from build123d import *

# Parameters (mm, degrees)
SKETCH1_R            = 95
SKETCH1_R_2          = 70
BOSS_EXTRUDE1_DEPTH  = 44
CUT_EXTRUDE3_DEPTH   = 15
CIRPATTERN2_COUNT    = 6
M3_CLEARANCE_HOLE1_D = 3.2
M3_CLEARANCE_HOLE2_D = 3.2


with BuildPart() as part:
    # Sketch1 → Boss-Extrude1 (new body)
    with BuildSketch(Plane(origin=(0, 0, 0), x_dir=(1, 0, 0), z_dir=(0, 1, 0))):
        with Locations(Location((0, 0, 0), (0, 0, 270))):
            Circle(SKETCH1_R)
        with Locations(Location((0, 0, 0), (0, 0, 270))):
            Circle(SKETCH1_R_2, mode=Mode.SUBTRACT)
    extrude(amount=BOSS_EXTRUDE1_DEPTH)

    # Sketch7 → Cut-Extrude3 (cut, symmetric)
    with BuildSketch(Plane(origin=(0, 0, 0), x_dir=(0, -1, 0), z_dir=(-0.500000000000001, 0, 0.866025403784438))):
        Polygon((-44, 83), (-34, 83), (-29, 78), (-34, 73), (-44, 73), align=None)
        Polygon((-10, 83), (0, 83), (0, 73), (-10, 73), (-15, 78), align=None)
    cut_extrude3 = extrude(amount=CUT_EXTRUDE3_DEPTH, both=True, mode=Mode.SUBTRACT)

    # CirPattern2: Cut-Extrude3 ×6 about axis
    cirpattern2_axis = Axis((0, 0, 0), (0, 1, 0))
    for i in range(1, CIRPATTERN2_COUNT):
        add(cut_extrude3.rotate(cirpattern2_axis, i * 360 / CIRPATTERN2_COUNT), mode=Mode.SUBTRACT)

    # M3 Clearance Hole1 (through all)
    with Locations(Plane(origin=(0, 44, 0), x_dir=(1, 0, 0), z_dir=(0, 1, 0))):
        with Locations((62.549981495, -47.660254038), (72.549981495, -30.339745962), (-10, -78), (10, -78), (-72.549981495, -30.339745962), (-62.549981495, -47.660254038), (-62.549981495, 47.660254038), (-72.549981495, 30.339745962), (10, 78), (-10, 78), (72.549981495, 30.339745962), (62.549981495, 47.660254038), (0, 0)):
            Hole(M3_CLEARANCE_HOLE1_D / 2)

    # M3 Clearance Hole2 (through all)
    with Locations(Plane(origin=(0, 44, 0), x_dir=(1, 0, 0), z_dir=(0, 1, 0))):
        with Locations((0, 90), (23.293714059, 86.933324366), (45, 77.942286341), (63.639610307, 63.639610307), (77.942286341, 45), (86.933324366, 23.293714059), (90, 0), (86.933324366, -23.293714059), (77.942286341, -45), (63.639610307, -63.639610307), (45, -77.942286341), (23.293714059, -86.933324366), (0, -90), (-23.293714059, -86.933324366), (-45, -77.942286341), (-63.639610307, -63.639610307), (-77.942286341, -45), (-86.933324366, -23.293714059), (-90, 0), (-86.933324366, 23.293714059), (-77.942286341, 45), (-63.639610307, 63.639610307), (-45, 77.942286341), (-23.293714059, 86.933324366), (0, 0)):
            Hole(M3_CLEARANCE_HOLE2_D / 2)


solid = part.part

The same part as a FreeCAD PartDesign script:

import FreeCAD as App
import Part
import Sketcher
Q = App.Units.Quantity


def add_polygon(sketch, points):
    """Adds a closed chain of lines whose ends are joined by coincident constraints."""
    first, n = sketch.GeometryCount, len(points)
    for a, b in zip(points, points[1:] + points[:1]):
        sketch.addGeometry(Part.LineSegment(App.Vector(*a, 0), App.Vector(*b, 0)), False)
    for i in range(n):
        sketch.addConstraint(Sketcher.Constraint("Coincident", first + i, 2, first + (i + 1) % n, 1))

doc = App.newDocument("Part")
params = doc.addObject("Spreadsheet::Sheet", "Params")
for row, (alias, value) in enumerate([
    ("sketch1_diameter", "190 mm"),
    ("sketch1_diameter2", "140 mm"),
    ("pad1_length", "44 mm"),
    ("sketch2_width", "10 mm"),
    ("pocket1_length", "30 mm"),
    ("sketch3_diameter", "3.2 mm"),
    ("hole_diameter", "3.2 mm"),
    ("sketch4_diameter", "3.2 mm"),
    ("hole2_diameter", "3.2 mm"),
], start=1):
    params.set(f"A{row}", alias)
    params.set(f"B{row}", "=" + value)
    params.setAlias(f"B{row}", alias)

body = doc.addObject("PartDesign::Body", "Body")

# Sketch on XZ plane
sketch1 = body.newObject("Sketcher::SketchObject", "Sketch")
sketch1.AttachmentSupport = (doc.getObject("XZ_Plane"), [""])
sketch1.MapMode = "FlatFace"
sketch1.addGeometry([
    Part.Circle(App.Vector(0, 0, 0), App.Vector(0, 0, 1), 95),
    Part.Circle(App.Vector(0, 0, 0), App.Vector(0, 0, 1), 70),
], False)
sketch1.addConstraint([
    Sketcher.Constraint("Coincident", 0, 3, -1, 1),
    Sketcher.Constraint("Coincident", 1, 3, -1, 1),
    Sketcher.Constraint("Diameter", 0, Q("190 mm")),
    Sketcher.Constraint("Diameter", 1, Q("140 mm")),
])
sketch1.setExpression("Constraints[2]", "Params.sketch1_diameter")
sketch1.setExpression("Constraints[3]", "Params.sketch1_diameter2")
pad1 = body.newObject("PartDesign::Pad", "Pad")
pad1.Profile = sketch1
pad1.setExpression("Length", "Params.pad1_length")
pad1.Reversed = True

# Sketch on an angled plane
sketch2 = body.newObject("Sketcher::SketchObject", "Sketch001")
sketch2.Placement = App.Placement(App.Vector(0, 0, 0), App.Rotation(App.Vector(0, -1, 0), App.Vector(0.866025404, 0, 0.5), App.Vector(-0.5, 0, 0.866025404), "ZXY"))
add_polygon(sketch2, [(-34, 83), (-44, 83), (-44, 73), (-34, 73), (-29, 78)])  # lines 0-4
add_polygon(sketch2, [(0, 83), (-10, 83), (-15, 78), (-10, 73), (0, 73)])  # lines 5-9
sketch2.addConstraint([
    Sketcher.Constraint("Horizontal", 0),
    Sketcher.Constraint("Vertical", 1),
    Sketcher.Constraint("Horizontal", 2),
    Sketcher.Constraint("Horizontal", 5),
    Sketcher.Constraint("Horizontal", 8),
    Sketcher.Constraint("Vertical", 9),
    Sketcher.Constraint("PointOnObject", 8, 2, -2),
    Sketcher.Constraint("Perpendicular", 3, 4),
    Sketcher.Constraint("Perpendicular", 4, 6),
    Sketcher.Constraint("Perpendicular", 6, 7),
    Sketcher.Constraint("Horizontal", 4, 2, 5, 2),
    Sketcher.Constraint("Horizontal", 3, 2, 6, 2),
    Sketcher.Constraint("Horizontal", 2, 2, 7, 2),
    Sketcher.Constraint("Vertical", 2, 2, 4, 2),
    Sketcher.Constraint("Vertical", 5, 2, 7, 2),
    Sketcher.Constraint("Equal", 2, 5),
    Sketcher.Constraint("Equal", 8, 1),
    Sketcher.Constraint("DistanceX", 0, 2, 0, 1, Q("10 mm")),
    Sketcher.Constraint("DistanceX", 0, 2, -1, 1, Q("44 mm")),
    Sketcher.Constraint("DistanceY", -1, 1, 0, 2, Q("83 mm")),
])
sketch2.setExpression("Constraints[27]", "Params.sketch2_width")
pocket1 = body.newObject("PartDesign::Pocket", "Pocket")
pocket1.Profile = sketch2
pocket1.setExpression("Length", "Params.pocket1_length")
pocket1.Midplane = True
doc.recompute()

polarpattern = body.newObject("PartDesign::PolarPattern", "PolarPattern")
polarpattern.Originals = [pocket1]
polarpattern.Axis = (doc.getObject("Y_Axis"), [""])
polarpattern.Angle = 360
polarpattern.Occurrences = 6
body.Tip = polarpattern

# Sketch on XZ plane
sketch3 = body.newObject("Sketcher::SketchObject", "Sketch002")
sketch3.AttachmentSupport = (doc.getObject("XZ_Plane"), [""])
sketch3.MapMode = "FlatFace"
sketch3.AttachmentOffset = App.Placement(App.Vector(0, 0, -44), App.Rotation())
sketch3.addGeometry([
    Part.Circle(App.Vector(62.5, 47.7, 0), App.Vector(0, 0, 1), 1.6),  # 0
    Part.Circle(App.Vector(72.5, 30.3, 0), App.Vector(0, 0, 1), 1.6),  # 1
    Part.Circle(App.Vector(-10, 78, 0), App.Vector(0, 0, 1), 1.6),  # 2
    Part.Circle(App.Vector(10, 78, 0), App.Vector(0, 0, 1), 1.6),  # 3
    Part.Circle(App.Vector(-72.5, 30.3, 0), App.Vector(0, 0, 1), 1.6),  # 4
    Part.Circle(App.Vector(-62.5, 47.7, 0), App.Vector(0, 0, 1), 1.6),  # 5
    Part.Circle(App.Vector(-62.5, -47.7, 0), App.Vector(0, 0, 1), 1.6),  # 6
    Part.Circle(App.Vector(-72.5, -30.3, 0), App.Vector(0, 0, 1), 1.6),  # 7
    Part.Circle(App.Vector(10, -78, 0), App.Vector(0, 0, 1), 1.6),  # 8
    Part.Circle(App.Vector(-10, -78, 0), App.Vector(0, 0, 1), 1.6),  # 9
    Part.Circle(App.Vector(72.5, -30.3, 0), App.Vector(0, 0, 1), 1.6),  # 10
    Part.Circle(App.Vector(62.5, -47.7, 0), App.Vector(0, 0, 1), 1.6),  # 11
    Part.Circle(App.Vector(0, 0, 0), App.Vector(0, 0, 1), 1.6),  # 12
], False)
sketch3.addConstraint([
    Sketcher.Constraint("Coincident", 12, 3, -1, 1),
    Sketcher.Constraint("Equal", 0, 1),
    Sketcher.Constraint("Equal", 1, 2),
    Sketcher.Constraint("Equal", 2, 3),
    Sketcher.Constraint("Equal", 3, 4),
    Sketcher.Constraint("Equal", 4, 5),
    Sketcher.Constraint("Equal", 5, 6),
    Sketcher.Constraint("Equal", 6, 7),
    Sketcher.Constraint("Equal", 7, 8),
    Sketcher.Constraint("Equal", 8, 9),
    Sketcher.Constraint("Equal", 9, 10),
    Sketcher.Constraint("Equal", 10, 11),
    Sketcher.Constraint("Equal", 11, 12),
    Sketcher.Constraint("Symmetric", 0, 3, 6, 3, -1, 1),
    Sketcher.Constraint("Symmetric", 1, 3, 7, 3, -1, 1),
    Sketcher.Constraint("Symmetric", 2, 3, 8, 3, -1, 1),
    Sketcher.Constraint("Symmetric", 3, 3, 9, 3, -1, 1),
    Sketcher.Constraint("Symmetric", 4, 3, 10, 3, -1, 1),
    Sketcher.Constraint("Symmetric", 5, 3, 11, 3, -1, 1),
    Sketcher.Constraint("Symmetric", 2, 3, 3, 3, -2),
    Sketcher.Constraint("Symmetric", 1, 3, 4, 3, -2),
    Sketcher.Constraint("Symmetric", 0, 3, 5, 3, -2),
    Sketcher.Constraint("Diameter", 0, Q("3.2 mm")),
    Sketcher.Constraint("DistanceX", 2, 3, -1, 1, Q("10 mm")),
    Sketcher.Constraint("DistanceY", -1, 1, 2, 3, Q("78 mm")),
    Sketcher.Constraint("DistanceX", 0, 3, 1, 3, Q("10 mm")),
    Sketcher.Constraint("DistanceY", 6, 3, 4, 3, Q("78 mm")),
    Sketcher.Constraint("DistanceX", -1, 1, 0, 3, Q("62.549981 mm")),
    Sketcher.Constraint("DistanceY", 1, 3, 0, 3, Q("17.320508 mm")),
])
sketch3.setExpression("Constraints[22]", "Params.sketch3_diameter")
doc.recompute()
hole = body.newObject("PartDesign::Hole", "Hole")
hole.Profile = sketch3
hole.ThreadType = "None"
hole.setExpression("Diameter", "Params.hole_diameter")
hole.DepthType = "ThroughAll"
hole.Reversed = True

# Sketch on XZ plane
sketch4 = body.newObject("Sketcher::SketchObject", "Sketch003")
sketch4.AttachmentSupport = (doc.getObject("XZ_Plane"), [""])
sketch4.MapMode = "FlatFace"
sketch4.AttachmentOffset = App.Placement(App.Vector(0, 0, -44), App.Rotation())
sketch4.addGeometry([
    Part.Circle(App.Vector(0, -90, 0), App.Vector(0, 0, 1), 1.6),  # 0
    Part.Circle(App.Vector(23.3, -86.9, 0), App.Vector(0, 0, 1), 1.6),  # 1
    Part.Circle(App.Vector(45, -77.9, 0), App.Vector(0, 0, 1), 1.6),  # 2
    Part.Circle(App.Vector(63.6, -63.6, 0), App.Vector(0, 0, 1), 1.6),  # 3
    Part.Circle(App.Vector(77.9, -45, 0), App.Vector(0, 0, 1), 1.6),  # 4
    Part.Circle(App.Vector(86.9, -23.3, 0), App.Vector(0, 0, 1), 1.6),  # 5
    Part.Circle(App.Vector(90, 0, 0), App.Vector(0, 0, 1), 1.6),  # 6
    Part.Circle(App.Vector(86.9, 23.3, 0), App.Vector(0, 0, 1), 1.6),  # 7
    Part.Circle(App.Vector(77.9, 45, 0), App.Vector(0, 0, 1), 1.6),  # 8
    Part.Circle(App.Vector(63.6, 63.6, 0), App.Vector(0, 0, 1), 1.6),  # 9
    Part.Circle(App.Vector(45, 77.9, 0), App.Vector(0, 0, 1), 1.6),  # 10
    Part.Circle(App.Vector(23.3, 86.9, 0), App.Vector(0, 0, 1), 1.6),  # 11
    Part.Circle(App.Vector(0, 90, 0), App.Vector(0, 0, 1), 1.6),  # 12
    Part.Circle(App.Vector(-23.3, 86.9, 0), App.Vector(0, 0, 1), 1.6),  # 13
    Part.Circle(App.Vector(-45, 77.9, 0), App.Vector(0, 0, 1), 1.6),  # 14
    Part.Circle(App.Vector(-63.6, 63.6, 0), App.Vector(0, 0, 1), 1.6),  # 15
    Part.Circle(App.Vector(-77.9, 45, 0), App.Vector(0, 0, 1), 1.6),  # 16
    Part.Circle(App.Vector(-86.9, 23.3, 0), App.Vector(0, 0, 1), 1.6),  # 17
    Part.Circle(App.Vector(-90, 0, 0), App.Vector(0, 0, 1), 1.6),  # 18
    Part.Circle(App.Vector(-86.9, -23.3, 0), App.Vector(0, 0, 1), 1.6),  # 19
    Part.Circle(App.Vector(-77.9, -45, 0), App.Vector(0, 0, 1), 1.6),  # 20
    Part.Circle(App.Vector(-63.6, -63.6, 0), App.Vector(0, 0, 1), 1.6),  # 21
    Part.Circle(App.Vector(-45, -77.9, 0), App.Vector(0, 0, 1), 1.6),  # 22
    Part.Circle(App.Vector(-23.3, -86.9, 0), App.Vector(0, 0, 1), 1.6),  # 23
    Part.Circle(App.Vector(0, 0, 0), App.Vector(0, 0, 1), 1.6),  # 24
], False)
sketch4.addConstraint([
    Sketcher.Constraint("Coincident", 24, 3, -1, 1),
    Sketcher.Constraint("Equal", 0, 1),
    Sketcher.Constraint("Equal", 1, 2),
    Sketcher.Constraint("Equal", 2, 3),
    Sketcher.Constraint("Equal", 3, 4),
    Sketcher.Constraint("Equal", 4, 5),
    Sketcher.Constraint("Equal", 5, 6),
    Sketcher.Constraint("Equal", 6, 7),
    Sketcher.Constraint("Equal", 7, 8),
    Sketcher.Constraint("Equal", 8, 9),
    Sketcher.Constraint("Equal", 9, 10),
    Sketcher.Constraint("Equal", 10, 11),
    Sketcher.Constraint("Equal", 11, 12),
    Sketcher.Constraint("Equal", 12, 13),
    Sketcher.Constraint("Equal", 13, 14),
    Sketcher.Constraint("Equal", 14, 15),
    Sketcher.Constraint("Equal", 15, 16),
    Sketcher.Constraint("Equal", 16, 17),
    Sketcher.Constraint("Equal", 17, 18),
    Sketcher.Constraint("Equal", 18, 19),
    Sketcher.Constraint("Equal", 19, 20),
    Sketcher.Constraint("Equal", 20, 21),
    Sketcher.Constraint("Equal", 21, 22),
    Sketcher.Constraint("Equal", 22, 23),
    Sketcher.Constraint("Equal", 23, 24),
    Sketcher.Constraint("Symmetric", 0, 3, 12, 3, -1, 1),
    Sketcher.Constraint("Symmetric", 1, 3, 13, 3, -1, 1),
    Sketcher.Constraint("Symmetric", 2, 3, 14, 3, -1, 1),
    Sketcher.Constraint("Symmetric", 3, 3, 15, 3, -1, 1),
    Sketcher.Constraint("Symmetric", 4, 3, 16, 3, -1, 1),
    Sketcher.Constraint("Symmetric", 5, 3, 17, 3, -1, 1),
    Sketcher.Constraint("Symmetric", 6, 3, 18, 3, -1, 1),
    Sketcher.Constraint("Symmetric", 7, 3, 19, 3, -1, 1),
    Sketcher.Constraint("Symmetric", 8, 3, 20, 3, -1, 1),
    Sketcher.Constraint("Symmetric", 9, 3, 21, 3, -1, 1),
    Sketcher.Constraint("Symmetric", 10, 3, 22, 3, -1, 1),
    Sketcher.Constraint("Symmetric", 11, 3, 23, 3, -1, 1),
    Sketcher.Constraint("Symmetric", 11, 3, 13, 3, -2),
    Sketcher.Constraint("Symmetric", 10, 3, 14, 3, -2),
    Sketcher.Constraint("Symmetric", 9, 3, 15, 3, -2),
    Sketcher.Constraint("Symmetric", 8, 3, 16, 3, -2),
    Sketcher.Constraint("Symmetric", 7, 3, 17, 3, -2),
    Sketcher.Constraint("PointOnObject", 0, 3, -2),
    Sketcher.Constraint("PointOnObject", 6, 3, -1),
    Sketcher.Constraint("Diameter", 0, Q("3.2 mm")),
    Sketcher.Constraint("DistanceY", 0, 3, -1, 1, Q("90 mm")),
    Sketcher.Constraint("DistanceX", -1, 1, 2, 3, Q("45 mm")),
    Sketcher.Constraint("DistanceY", 4, 3, -1, 1, Q("45 mm")),
    Sketcher.Constraint("DistanceX", -1, 1, 6, 3, Q("90 mm")),
    Sketcher.Constraint("DistanceY", 2, 3, 7, 3, Q("101.236 mm")),
    Sketcher.Constraint("DistanceX", 13, 3, 8, 3, Q("101.236 mm")),
    Sketcher.Constraint("DistanceX", -1, 1, 3, 3, Q("63.63961 mm")),
    Sketcher.Constraint("DistanceY", 3, 3, -1, 1, Q("63.63961 mm")),
    Sketcher.Constraint("DistanceY", 1, 3, 2, 3, Q("8.991038 mm")),
    Sketcher.Constraint("DistanceX", 4, 3, 5, 3, Q("8.991038 mm")),
    Sketcher.Constraint("DistanceX", 1, 3, 5, 3, Q("63.63961 mm")),
    Sketcher.Constraint("DistanceY", 1, 3, 5, 3, Q("63.63961 mm")),
])
sketch4.setExpression("Constraints[44]", "Params.sketch4_diameter")
doc.recompute()
hole2 = body.newObject("PartDesign::Hole", "Hole001")
hole2.Profile = sketch4
hole2.ThreadType = "None"
hole2.setExpression("Diameter", "Params.hole2_diameter")
hole2.DepthType = "ThroughAll"
hole2.Reversed = True

doc.recompute()
